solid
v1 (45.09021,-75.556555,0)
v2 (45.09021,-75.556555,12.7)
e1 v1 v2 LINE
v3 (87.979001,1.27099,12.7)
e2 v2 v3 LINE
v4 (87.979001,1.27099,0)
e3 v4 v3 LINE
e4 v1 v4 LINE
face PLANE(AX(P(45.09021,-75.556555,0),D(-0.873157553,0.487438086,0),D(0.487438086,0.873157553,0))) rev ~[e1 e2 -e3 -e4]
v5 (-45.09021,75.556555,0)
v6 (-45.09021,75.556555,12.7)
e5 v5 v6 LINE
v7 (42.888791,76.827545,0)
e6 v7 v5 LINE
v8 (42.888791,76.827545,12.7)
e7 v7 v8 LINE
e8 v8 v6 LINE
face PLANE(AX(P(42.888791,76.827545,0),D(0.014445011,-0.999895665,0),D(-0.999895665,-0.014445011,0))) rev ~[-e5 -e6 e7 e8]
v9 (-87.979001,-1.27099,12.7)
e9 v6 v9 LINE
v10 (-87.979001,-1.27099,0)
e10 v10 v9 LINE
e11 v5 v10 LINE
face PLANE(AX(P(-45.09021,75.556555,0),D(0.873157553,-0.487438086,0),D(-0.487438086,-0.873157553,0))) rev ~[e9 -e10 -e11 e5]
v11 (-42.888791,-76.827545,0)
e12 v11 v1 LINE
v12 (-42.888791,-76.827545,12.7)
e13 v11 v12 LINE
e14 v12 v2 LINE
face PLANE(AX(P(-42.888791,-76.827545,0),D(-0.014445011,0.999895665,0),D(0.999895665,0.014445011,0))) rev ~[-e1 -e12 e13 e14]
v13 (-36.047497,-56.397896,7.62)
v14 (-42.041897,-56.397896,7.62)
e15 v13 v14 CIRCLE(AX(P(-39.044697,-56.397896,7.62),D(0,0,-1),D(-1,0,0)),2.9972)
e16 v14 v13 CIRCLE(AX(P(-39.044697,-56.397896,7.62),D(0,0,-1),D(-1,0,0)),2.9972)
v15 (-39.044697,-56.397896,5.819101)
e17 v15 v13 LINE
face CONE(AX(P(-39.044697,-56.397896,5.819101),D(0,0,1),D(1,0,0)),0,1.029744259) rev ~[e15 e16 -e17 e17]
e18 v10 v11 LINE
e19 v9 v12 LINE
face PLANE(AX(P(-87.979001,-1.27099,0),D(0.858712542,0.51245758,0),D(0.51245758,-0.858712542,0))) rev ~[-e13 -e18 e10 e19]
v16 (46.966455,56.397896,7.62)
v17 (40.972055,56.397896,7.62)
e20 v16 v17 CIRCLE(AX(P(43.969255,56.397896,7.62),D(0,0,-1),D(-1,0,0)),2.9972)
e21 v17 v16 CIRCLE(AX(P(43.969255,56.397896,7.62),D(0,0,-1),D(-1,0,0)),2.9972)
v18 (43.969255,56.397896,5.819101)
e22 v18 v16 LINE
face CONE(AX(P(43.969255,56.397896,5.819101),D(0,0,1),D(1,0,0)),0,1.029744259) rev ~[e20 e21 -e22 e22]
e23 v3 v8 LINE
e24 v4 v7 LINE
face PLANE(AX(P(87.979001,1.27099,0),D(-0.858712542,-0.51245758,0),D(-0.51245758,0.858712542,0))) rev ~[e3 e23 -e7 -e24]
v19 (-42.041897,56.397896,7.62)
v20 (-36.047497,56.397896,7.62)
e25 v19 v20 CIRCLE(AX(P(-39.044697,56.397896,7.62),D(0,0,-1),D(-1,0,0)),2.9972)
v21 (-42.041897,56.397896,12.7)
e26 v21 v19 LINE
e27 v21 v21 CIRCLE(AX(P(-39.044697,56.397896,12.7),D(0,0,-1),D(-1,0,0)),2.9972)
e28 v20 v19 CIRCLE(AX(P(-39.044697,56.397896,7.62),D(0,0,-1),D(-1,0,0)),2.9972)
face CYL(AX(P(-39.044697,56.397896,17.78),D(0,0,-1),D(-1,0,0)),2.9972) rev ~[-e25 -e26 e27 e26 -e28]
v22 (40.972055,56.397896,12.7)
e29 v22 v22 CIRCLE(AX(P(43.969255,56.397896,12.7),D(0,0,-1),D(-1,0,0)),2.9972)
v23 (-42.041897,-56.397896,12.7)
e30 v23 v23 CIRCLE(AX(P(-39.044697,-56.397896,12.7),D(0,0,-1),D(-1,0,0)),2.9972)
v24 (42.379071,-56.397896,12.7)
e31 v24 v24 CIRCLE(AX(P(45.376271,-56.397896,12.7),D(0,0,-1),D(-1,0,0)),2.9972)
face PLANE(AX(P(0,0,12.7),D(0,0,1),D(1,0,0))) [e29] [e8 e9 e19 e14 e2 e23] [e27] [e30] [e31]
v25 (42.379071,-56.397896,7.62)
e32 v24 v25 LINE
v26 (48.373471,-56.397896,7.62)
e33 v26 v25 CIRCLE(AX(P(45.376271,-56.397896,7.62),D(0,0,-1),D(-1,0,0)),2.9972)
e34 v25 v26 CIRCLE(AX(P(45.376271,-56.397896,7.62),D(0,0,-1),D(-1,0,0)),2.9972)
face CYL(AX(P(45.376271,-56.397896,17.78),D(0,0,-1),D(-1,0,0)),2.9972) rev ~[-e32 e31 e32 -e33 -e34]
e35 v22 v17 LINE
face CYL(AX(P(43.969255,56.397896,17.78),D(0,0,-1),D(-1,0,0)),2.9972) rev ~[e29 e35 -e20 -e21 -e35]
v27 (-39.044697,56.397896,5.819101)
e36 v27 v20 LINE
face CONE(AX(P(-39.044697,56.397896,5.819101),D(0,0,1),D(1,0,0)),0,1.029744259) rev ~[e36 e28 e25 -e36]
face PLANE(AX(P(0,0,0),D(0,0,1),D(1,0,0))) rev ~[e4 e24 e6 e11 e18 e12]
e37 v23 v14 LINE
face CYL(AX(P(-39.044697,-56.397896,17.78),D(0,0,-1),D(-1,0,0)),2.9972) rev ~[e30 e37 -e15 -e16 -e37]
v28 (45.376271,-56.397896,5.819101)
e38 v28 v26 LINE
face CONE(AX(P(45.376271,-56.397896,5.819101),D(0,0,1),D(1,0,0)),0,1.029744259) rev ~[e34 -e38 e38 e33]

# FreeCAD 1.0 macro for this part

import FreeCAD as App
import Part
import Sketcher
from FreeCAD import Vector
Q = App.Units.Quantity


def add_polygon(sketch, points):
    """Adds a closed chain of lines whose ends are joined by coincident constraints."""
    first, n = sketch.GeometryCount, len(points)
    for a, b in zip(points, points[1:] + points[:1]):
        sketch.addGeometry(Part.LineSegment(App.Vector(*a, 0), App.Vector(*b, 0)), False)
    for i in range(n):
        sketch.addConstraint(Sketcher.Constraint("Coincident", first + i, 2, first + (i + 1) % n, 1))

doc = App.newDocument("Part")
body = doc.addObject("PartDesign::Body", "Body")

# Sketch on XY plane
sketch1 = body.newObject("Sketcher::SketchObject", "Sketch")
sketch1.AttachmentSupport = (doc.getObject("XY_Plane"), [""])
sketch1.MapMode = "FlatFace"
add_polygon(sketch1, [(45, -76), (88, 1), (43, 77), (-45, 76), (-88, -1), (-43, -77)])  # lines 0-5
sketch1.addConstraint(Sketcher.Constraint("Symmetric", 0, 2, 3, 2, -1, 1))
sketch1.addConstraint(Sketcher.Constraint("Symmetric", 1, 2, 4, 2, -1, 1))
sketch1.addConstraint(Sketcher.Constraint("Symmetric", 2, 2, 5, 2, -1, 1))
sketch1.addConstraint(Sketcher.Constraint("Equal", 0, 1))
sketch1.addConstraint(Sketcher.Constraint("Equal", 1, 2))
sketch1.addConstraint(Sketcher.Constraint("DistanceX", -1, 1, 0, 2, Q("87.979001 mm")))
sketch1.addConstraint(Sketcher.Constraint("DistanceX", 2, 2, 1, 2, Q("87.979001 mm")))
sketch1.addConstraint(Sketcher.Constraint("DistanceY", 4, 2, 2, 2, Q("152.384099 mm")))
sketch1.addConstraint(Sketcher.Constraint("Distance", 0, Q("87.988181 mm")))
pad1 = body.newObject("PartDesign::Pad", "Pad")
pad1.Profile = sketch1
pad1.Length = Q("0.5 in")

# Sketch on XY plane
sketch2 = body.newObject("Sketcher::SketchObject", "Sketch001")
sketch2.AttachmentSupport = (doc.getObject("XY_Plane"), [""])
sketch2.MapMode = "FlatFace"
sketch2.AttachmentOffset = App.Placement(Vector(0, 0, 0.5 * 25.4), App.Rotation())
sketch2.addGeometry(Part.Circle(Vector(-39, 56.4, 0), Vector(0, 0, 1), 3), False)
sketch2.addGeometry(Part.Circle(Vector(44, 56.4, 0), Vector(0, 0, 1), 3), False)
sketch2.addGeometry(Part.Circle(Vector(-39, -56.4, 0), Vector(0, 0, 1), 3), False)
sketch2.addGeometry(Part.Circle(Vector(45.4, -56.4, 0), Vector(0, 0, 1), 3), False)
sketch2.addConstraint(Sketcher.Constraint("Equal", 0, 1))
sketch2.addConstraint(Sketcher.Constraint("Equal", 1, 2))
sketch2.addConstraint(Sketcher.Constraint("Equal", 2, 3))
sketch2.addConstraint(Sketcher.Constraint("Symmetric", 0, 3, 2, 3, -1))
sketch2.addConstraint(Sketcher.Constraint("Horizontal", 0, 3, 1, 3))
sketch2.addConstraint(Sketcher.Constraint("Horizontal", 2, 3, 3, 3))
sketch2.addConstraint(Sketcher.Constraint("Diameter", 0, Q("0.236 in")))
sketch2.addConstraint(Sketcher.Constraint("DistanceX", -1, 1, 3, 3, Q("45.376271 mm")))
sketch2.addConstraint(Sketcher.Constraint("DistanceX", 0, 3, 1, 3, Q("83.013952 mm")))
sketch2.addConstraint(Sketcher.Constraint("DistanceX", 0, 3, -1, 1, Q("39.044697 mm")))
sketch2.addConstraint(Sketcher.Constraint("DistanceY", -1, 1, 0, 3, Q("56.397896 mm")))
doc.recompute()
hole = body.newObject("PartDesign::Hole", "Hole")
hole.Profile = sketch2
hole.ThreadType = "None"
hole.Diameter = Q("0.236 in")
hole.DepthType = "Dimension"
hole.Depth = Q("0.2 in")
hole.DrillPoint = "Angled"
hole.DrillPointAngle = 118

doc.recompute()
